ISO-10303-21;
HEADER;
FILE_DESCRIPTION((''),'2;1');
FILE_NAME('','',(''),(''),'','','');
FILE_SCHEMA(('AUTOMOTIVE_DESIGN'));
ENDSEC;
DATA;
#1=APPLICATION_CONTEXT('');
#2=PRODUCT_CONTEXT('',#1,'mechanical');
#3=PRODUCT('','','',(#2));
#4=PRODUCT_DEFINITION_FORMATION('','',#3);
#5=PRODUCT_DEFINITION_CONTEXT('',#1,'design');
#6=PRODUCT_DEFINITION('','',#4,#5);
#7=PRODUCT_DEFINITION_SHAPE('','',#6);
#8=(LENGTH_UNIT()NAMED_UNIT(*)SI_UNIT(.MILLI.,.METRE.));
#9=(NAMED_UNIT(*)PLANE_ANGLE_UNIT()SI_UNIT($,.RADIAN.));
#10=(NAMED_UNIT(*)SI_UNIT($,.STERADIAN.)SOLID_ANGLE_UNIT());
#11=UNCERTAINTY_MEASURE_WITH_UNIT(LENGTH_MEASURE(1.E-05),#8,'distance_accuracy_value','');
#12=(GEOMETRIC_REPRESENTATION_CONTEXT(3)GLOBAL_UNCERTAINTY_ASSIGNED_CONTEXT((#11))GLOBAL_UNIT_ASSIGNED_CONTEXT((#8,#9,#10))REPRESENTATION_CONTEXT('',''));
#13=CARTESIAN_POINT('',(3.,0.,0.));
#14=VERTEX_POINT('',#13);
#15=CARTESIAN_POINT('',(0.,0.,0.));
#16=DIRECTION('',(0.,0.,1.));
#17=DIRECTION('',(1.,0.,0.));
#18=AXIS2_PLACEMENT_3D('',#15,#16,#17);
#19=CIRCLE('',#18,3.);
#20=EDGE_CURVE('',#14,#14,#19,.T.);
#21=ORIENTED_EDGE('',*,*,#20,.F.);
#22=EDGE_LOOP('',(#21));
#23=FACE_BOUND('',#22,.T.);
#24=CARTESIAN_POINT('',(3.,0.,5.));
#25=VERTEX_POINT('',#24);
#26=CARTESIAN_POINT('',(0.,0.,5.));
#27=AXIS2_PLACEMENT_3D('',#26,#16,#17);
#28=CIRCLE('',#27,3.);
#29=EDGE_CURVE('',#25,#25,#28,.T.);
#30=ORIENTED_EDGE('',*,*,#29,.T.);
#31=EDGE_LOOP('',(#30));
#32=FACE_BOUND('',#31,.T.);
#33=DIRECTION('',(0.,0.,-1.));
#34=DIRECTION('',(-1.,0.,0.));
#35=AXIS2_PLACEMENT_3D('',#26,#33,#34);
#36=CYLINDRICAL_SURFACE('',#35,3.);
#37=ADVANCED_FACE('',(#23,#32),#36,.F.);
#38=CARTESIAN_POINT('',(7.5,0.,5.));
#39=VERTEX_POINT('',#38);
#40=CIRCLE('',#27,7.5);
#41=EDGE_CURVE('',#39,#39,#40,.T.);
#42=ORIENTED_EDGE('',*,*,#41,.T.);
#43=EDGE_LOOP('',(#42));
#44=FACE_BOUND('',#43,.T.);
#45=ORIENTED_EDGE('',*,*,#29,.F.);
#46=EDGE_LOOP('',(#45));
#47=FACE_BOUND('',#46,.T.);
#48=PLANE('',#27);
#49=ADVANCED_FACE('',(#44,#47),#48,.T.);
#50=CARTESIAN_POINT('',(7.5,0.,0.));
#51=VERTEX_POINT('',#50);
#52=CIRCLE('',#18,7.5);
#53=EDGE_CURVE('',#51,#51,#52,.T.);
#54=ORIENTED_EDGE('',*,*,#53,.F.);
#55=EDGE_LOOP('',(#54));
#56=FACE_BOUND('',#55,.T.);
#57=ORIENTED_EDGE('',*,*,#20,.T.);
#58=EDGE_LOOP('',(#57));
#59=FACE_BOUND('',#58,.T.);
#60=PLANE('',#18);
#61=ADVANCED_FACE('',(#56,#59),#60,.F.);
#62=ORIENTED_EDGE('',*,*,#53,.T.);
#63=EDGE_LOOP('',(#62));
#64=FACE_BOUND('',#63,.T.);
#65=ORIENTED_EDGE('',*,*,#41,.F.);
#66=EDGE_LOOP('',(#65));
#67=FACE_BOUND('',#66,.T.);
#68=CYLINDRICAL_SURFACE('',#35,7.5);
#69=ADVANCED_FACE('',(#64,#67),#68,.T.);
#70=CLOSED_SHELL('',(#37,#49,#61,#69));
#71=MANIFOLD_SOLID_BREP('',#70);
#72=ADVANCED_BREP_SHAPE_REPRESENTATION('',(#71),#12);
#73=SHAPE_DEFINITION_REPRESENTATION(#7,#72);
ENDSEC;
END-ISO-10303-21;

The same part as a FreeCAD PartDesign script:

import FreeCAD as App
import Part
import Sketcher
from FreeCAD import Vector
Q = App.Units.Quantity

doc = App.newDocument("Part")
body = doc.addObject("PartDesign::Body", "Body")

sketch1 = body.newObject("Sketcher::SketchObject", "Sketch")
sketch1.AttachmentSupport = (doc.getObject("XY_Plane"), [""])
sketch1.MapMode = "FlatFace"
sketch1.addGeometry([
    Part.Circle(Vector(0, 0, 0), Vector(0, 0, 1), 7.5),
    Part.Circle(Vector(0, 0, 0), Vector(0, 0, 1), 3),
], False)
sketch1.addConstraint([
    Sketcher.Constraint("Coincident", 0, 3, -1, 1),
    Sketcher.Constraint("Coincident", 1, 3, -1, 1),
    Sketcher.Constraint("Diameter", 0, Q("15 mm")),
    Sketcher.Constraint("Diameter", 1, Q("6 mm")),
])
pad1 = body.newObject("PartDesign::Pad", "Pad")
pad1.Profile = sketch1
pad1.Length = 5

doc.recompute()
